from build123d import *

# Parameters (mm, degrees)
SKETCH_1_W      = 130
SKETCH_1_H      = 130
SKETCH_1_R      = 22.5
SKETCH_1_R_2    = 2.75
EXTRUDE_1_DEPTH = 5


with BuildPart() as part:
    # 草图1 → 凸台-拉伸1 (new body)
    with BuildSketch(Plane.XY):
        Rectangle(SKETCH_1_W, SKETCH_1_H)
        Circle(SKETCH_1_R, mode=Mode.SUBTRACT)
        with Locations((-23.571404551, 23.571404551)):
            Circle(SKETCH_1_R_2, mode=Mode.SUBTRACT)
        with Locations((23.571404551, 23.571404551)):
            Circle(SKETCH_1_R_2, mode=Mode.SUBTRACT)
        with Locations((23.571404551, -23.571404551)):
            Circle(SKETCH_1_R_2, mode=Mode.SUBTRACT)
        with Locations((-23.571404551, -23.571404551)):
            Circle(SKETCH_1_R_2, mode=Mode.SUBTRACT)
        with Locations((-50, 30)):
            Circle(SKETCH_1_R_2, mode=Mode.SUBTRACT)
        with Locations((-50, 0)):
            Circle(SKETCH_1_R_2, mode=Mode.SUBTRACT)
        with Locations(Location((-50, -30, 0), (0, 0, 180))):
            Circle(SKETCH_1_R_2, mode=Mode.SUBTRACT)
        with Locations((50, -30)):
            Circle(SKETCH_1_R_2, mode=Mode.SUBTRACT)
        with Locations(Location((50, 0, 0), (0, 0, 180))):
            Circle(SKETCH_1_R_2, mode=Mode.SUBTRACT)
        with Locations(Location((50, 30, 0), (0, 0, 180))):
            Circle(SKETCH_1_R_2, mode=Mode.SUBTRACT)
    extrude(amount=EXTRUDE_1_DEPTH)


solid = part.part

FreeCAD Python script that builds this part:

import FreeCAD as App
import Part
import Sketcher

V = App.Vector


def add_polygon(sketch, points):
    """Adds a closed chain of lines whose ends are joined by coincident constraints."""
    first, n = sketch.GeometryCount, len(points)
    for a, b in zip(points, points[1:] + points[:1]):
        sketch.addGeometry(Part.LineSegment(App.Vector(*a, 0), App.Vector(*b, 0)), False)
    for i in range(n):
        sketch.addConstraint(Sketcher.Constraint("Coincident", first + i, 2, first + (i + 1) % n, 1))

doc = App.newDocument("Part")
body = doc.addObject("PartDesign::Body", "Body")

# Sketch on XY plane
sketch1 = body.newObject("Sketcher::SketchObject", "Sketch")
sketch1.AttachmentSupport = (doc.getObject("XY_Plane"), [""])
sketch1.MapMode = "FlatFace"
add_polygon(sketch1, [(-65, 65), (-65, -65), (65, -65), (65, 65)])  # lines 0-3
sketch1.addGeometry(Part.Circle(V(-50, -30, 0), V(0, 0, 1), 2.8), False)  # 4
sketch1.addGeometry(Part.Circle(V(-23.6, -23.6, 0), V(0, 0, 1), 2.8), False)  # 5
sketch1.addGeometry(Part.Circle(V(23.6, -23.6, 0), V(0, 0, 1), 2.8), False)  # 6
sketch1.addGeometry(Part.Circle(V(50, -30, 0), V(0, 0, 1), 2.8), False)  # 7
sketch1.addGeometry(Part.Circle(V(-50, 0, 0), V(0, 0, 1), 2.8), False)  # 8
sketch1.addGeometry(Part.Circle(V(-50, 30, 0), V(0, 0, 1), 2.8), False)  # 9
sketch1.addGeometry(Part.Circle(V(-23.6, 23.6, 0), V(0, 0, 1), 2.8), False)  # 10
sketch1.addGeometry(Part.Circle(V(0, 0, 0), V(0, 0, 1), 22.5), False)  # 11
sketch1.addGeometry(Part.Circle(V(50, 0, 0), V(0, 0, 1), 2.8), False)  # 12
sketch1.addGeometry(Part.Circle(V(23.6, 23.6, 0), V(0, 0, 1), 2.8), False)  # 13
sketch1.addGeometry(Part.Circle(V(50, 30, 0), V(0, 0, 1), 2.8), False)  # 14
sketch1.addConstraint(Sketcher.Constraint("Vertical", 0))
sketch1.addConstraint(Sketcher.Constraint("Horizontal", 1))
sketch1.addConstraint(Sketcher.Constraint("Vertical", 2))
sketch1.addConstraint(Sketcher.Constraint("Horizontal", 3))
sketch1.addConstraint(Sketcher.Constraint("Coincident", 11, 3, -1, 1))
sketch1.addConstraint(Sketcher.Constraint("Equal", 4, 5))
sketch1.addConstraint(Sketcher.Constraint("Equal", 5, 6))
sketch1.addConstraint(Sketcher.Constraint("Equal", 6, 7))
sketch1.addConstraint(Sketcher.Constraint("Equal", 7, 8))
sketch1.addConstraint(Sketcher.Constraint("Equal", 8, 9))
sketch1.addConstraint(Sketcher.Constraint("Equal", 9, 10))
sketch1.addConstraint(Sketcher.Constraint("Equal", 10, 12))
sketch1.addConstraint(Sketcher.Constraint("Equal", 12, 13))
sketch1.addConstraint(Sketcher.Constraint("Equal", 13, 14))
sketch1.addConstraint(Sketcher.Constraint("Symmetric", 7, 3, 9, 3, -1, 1))
sketch1.addConstraint(Sketcher.Constraint("Symmetric", 6, 3, 10, 3, -1, 1))
sketch1.addConstraint(Sketcher.Constraint("Symmetric", 8, 3, 12, 3, -1, 1))
sketch1.addConstraint(Sketcher.Constraint("Symmetric", 5, 3, 13, 3, -1, 1))
sketch1.addConstraint(Sketcher.Constraint("Symmetric", 4, 3, 14, 3, -1, 1))
sketch1.addConstraint(Sketcher.Constraint("Symmetric", 0, 2, 2, 2, -1, 1))
sketch1.addConstraint(Sketcher.Constraint("Symmetric", 5, 3, 6, 3, -2))
sketch1.addConstraint(Sketcher.Constraint("Symmetric", 4, 3, 7, 3, -2))
sketch1.addConstraint(Sketcher.Constraint("PointOnObject", 8, 3, -1))
sketch1.addConstraint(Sketcher.Constraint("Vertical", 4, 3, 8, 3))
sketch1.addConstraint(Sketcher.Constraint("Equal", 3, 0))
sketch1.addConstraint(Sketcher.Constraint("Diameter", 11, 45.0))
sketch1.addConstraint(Sketcher.Constraint("Diameter", 4, 5.5))
sketch1.addConstraint(Sketcher.Constraint("DistanceX", 1, 1, 1, 2, 130.0))
sketch1.addConstraint(Sketcher.Constraint("DistanceX", 4, 3, -1, 1, 50.0))
sketch1.addConstraint(Sketcher.Constraint("DistanceY", 4, 3, -1, 1, 30.0))
sketch1.addConstraint(Sketcher.Constraint("DistanceX", 5, 3, 6, 3, 47.142809))
sketch1.addConstraint(Sketcher.Constraint("DistanceY", 5, 3, 10, 3, 47.142809))
pad1 = body.newObject("PartDesign::Pad", "Pad")
pad1.Profile = sketch1
pad1.Length = 5

doc.recompute()
